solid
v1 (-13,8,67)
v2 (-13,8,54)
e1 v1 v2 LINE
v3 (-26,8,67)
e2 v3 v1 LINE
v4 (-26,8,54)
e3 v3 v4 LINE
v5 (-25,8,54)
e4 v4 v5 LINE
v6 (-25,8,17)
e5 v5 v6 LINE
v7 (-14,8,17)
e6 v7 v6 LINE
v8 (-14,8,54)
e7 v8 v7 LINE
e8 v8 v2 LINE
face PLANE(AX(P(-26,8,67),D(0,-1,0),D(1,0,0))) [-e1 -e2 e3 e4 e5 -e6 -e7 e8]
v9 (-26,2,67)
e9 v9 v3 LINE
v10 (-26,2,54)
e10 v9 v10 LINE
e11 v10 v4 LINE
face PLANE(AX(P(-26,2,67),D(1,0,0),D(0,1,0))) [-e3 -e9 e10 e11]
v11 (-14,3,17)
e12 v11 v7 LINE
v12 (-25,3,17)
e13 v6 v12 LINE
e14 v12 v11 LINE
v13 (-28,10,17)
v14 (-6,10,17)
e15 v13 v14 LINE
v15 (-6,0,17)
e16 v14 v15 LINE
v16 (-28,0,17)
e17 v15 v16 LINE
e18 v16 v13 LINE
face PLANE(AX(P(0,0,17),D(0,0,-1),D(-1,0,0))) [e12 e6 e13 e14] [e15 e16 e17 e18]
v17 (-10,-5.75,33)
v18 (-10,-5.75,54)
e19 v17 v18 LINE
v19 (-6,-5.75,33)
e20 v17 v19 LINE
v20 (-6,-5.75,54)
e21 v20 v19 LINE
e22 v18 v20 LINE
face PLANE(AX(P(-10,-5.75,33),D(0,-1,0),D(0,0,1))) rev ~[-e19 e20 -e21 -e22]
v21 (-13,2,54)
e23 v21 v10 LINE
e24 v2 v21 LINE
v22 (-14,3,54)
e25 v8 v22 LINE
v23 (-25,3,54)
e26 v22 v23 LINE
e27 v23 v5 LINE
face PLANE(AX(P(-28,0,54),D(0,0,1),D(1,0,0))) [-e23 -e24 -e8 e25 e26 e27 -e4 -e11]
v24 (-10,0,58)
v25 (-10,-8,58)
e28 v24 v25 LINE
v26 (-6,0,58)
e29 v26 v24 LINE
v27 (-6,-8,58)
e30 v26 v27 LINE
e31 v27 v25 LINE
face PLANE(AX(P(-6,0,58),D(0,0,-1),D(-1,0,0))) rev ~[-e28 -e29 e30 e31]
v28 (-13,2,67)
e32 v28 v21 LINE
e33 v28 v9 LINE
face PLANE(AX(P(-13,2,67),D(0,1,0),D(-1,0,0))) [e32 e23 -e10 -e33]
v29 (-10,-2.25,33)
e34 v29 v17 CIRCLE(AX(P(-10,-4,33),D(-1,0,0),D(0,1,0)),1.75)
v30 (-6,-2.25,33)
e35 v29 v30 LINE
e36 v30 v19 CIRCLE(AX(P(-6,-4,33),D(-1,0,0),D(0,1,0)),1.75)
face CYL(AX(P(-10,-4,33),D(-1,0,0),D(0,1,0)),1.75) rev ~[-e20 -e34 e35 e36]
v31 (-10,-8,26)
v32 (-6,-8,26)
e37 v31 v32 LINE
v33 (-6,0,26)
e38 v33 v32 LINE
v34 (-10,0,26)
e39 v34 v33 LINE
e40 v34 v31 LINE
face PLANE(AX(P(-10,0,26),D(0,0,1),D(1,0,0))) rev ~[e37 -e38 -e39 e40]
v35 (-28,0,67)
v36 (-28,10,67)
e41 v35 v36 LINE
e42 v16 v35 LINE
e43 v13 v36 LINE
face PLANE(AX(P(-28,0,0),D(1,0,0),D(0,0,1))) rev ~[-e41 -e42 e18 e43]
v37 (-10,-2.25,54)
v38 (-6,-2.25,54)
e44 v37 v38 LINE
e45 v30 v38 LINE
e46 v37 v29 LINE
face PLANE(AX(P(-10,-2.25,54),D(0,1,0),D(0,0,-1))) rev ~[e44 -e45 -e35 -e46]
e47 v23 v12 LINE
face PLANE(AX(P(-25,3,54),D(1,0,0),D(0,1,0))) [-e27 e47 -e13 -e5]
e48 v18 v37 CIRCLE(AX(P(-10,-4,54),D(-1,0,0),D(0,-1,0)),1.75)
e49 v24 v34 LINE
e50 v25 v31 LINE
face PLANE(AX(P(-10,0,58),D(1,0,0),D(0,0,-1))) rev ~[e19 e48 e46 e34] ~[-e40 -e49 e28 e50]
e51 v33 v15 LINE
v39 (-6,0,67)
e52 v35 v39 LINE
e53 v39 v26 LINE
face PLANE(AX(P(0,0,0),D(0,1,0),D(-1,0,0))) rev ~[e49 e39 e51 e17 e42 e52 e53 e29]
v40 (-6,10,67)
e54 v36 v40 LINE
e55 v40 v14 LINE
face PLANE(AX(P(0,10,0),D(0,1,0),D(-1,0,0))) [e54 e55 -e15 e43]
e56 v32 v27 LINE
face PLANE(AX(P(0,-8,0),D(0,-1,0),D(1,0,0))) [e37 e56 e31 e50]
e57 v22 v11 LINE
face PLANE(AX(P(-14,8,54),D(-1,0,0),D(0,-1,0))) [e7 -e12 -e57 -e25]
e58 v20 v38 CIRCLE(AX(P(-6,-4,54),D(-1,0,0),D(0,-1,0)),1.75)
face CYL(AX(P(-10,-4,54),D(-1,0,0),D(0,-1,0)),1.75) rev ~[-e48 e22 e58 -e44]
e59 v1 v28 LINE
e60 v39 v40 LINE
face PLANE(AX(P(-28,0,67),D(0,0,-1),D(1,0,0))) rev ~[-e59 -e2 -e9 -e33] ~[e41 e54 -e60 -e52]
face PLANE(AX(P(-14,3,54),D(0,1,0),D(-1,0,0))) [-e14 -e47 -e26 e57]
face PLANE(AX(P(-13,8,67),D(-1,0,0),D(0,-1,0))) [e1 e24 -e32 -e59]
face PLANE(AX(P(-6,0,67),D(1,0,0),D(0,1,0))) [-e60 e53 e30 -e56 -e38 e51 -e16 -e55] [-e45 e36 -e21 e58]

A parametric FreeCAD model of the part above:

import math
import FreeCAD as App
import Part
import Sketcher

V = App.Vector


def add_polygon(sketch, points):
    """Adds a closed chain of lines whose ends are joined by coincident constraints."""
    first, n = sketch.GeometryCount, len(points)
    for a, b in zip(points, points[1:] + points[:1]):
        sketch.addGeometry(Part.LineSegment(App.Vector(*a, 0), App.Vector(*b, 0)), False)
    for i in range(n):
        sketch.addConstraint(Sketcher.Constraint("Coincident", first + i, 2, first + (i + 1) % n, 1))

doc = App.newDocument("Part")
body = doc.addObject("PartDesign::Body", "Body")

# Sketch on XZ plane
sketch1 = body.newObject("Sketcher::SketchObject", "Sketch")
sketch1.AttachmentSupport = (doc.getObject("XZ_Plane"), [""])
sketch1.MapMode = "FlatFace"
add_polygon(sketch1, [(0, 67), (0, 0), (-28, 0), (-28, 67)])  # lines 0-3
sketch1.addConstraint([
    Sketcher.Constraint("Vertical", 0),
    Sketcher.Constraint("Horizontal", 1),
    Sketcher.Constraint("Vertical", 2),
    Sketcher.Constraint("Horizontal", 3),
    Sketcher.Constraint("Coincident", 0, 2, -1, 1),
    Sketcher.Constraint("DistanceX", 1, 2, 1, 1, 28.0),
    Sketcher.Constraint("DistanceY", 0, 2, 0, 1, 67.0),
])
pad1 = body.newObject("PartDesign::Pad", "Pad")
pad1.Profile = sketch1
pad1.Length = 10
pad1.Reversed = True

# Sketch on XY plane
sketch2 = body.newObject("Sketcher::SketchObject", "Sketch001")
sketch2.AttachmentSupport = (doc.getObject("XY_Plane"), [""])
sketch2.MapMode = "FlatFace"
sketch2.AttachmentOffset = App.Placement(V(0, 0, 67), App.Rotation())
add_polygon(sketch2, [(-13, 8), (-26, 8), (-26, 2), (-13, 2)])  # lines 0-3
sketch2.addConstraint([
    Sketcher.Constraint("Horizontal", 0),
    Sketcher.Constraint("Vertical", 1),
    Sketcher.Constraint("Horizontal", 2),
    Sketcher.Constraint("Vertical", 3),
    Sketcher.Constraint("DistanceX", 0, 2, 0, 1, 13.0),
    Sketcher.Constraint("DistanceY", 1, 2, 1, 1, 6.0),
    Sketcher.Constraint("DistanceX", 2, 2, -1, 1, 13.0),
    Sketcher.Constraint("DistanceY", -1, 1, 0, 2, 8.0),
])
pocket1 = body.newObject("PartDesign::Pocket", "Pocket")
pocket1.Profile = sketch2
pocket1.Length = 13

# Sketch on XY plane
sketch3 = body.newObject("Sketcher::SketchObject", "Sketch002")
sketch3.AttachmentSupport = (doc.getObject("XY_Plane"), [""])
sketch3.MapMode = "FlatFace"
sketch3.AttachmentOffset = App.Placement(V(0, 0, 54), App.Rotation())
add_polygon(sketch3, [(-14, 8), (-25, 8), (-25, 3), (-14, 3)])  # lines 0-3
sketch3.addConstraint([
    Sketcher.Constraint("Horizontal", 0),
    Sketcher.Constraint("Vertical", 1),
    Sketcher.Constraint("Horizontal", 2),
    Sketcher.Constraint("Vertical", 3),
    Sketcher.Constraint("DistanceX", 0, 2, 0, 1, 11.0),
    Sketcher.Constraint("DistanceY", 1, 2, 1, 1, 5.0),
    Sketcher.Constraint("DistanceX", 0, 2, -1, 1, 25.0),
    Sketcher.Constraint("DistanceY", -1, 1, 0, 2, 8.0),
])
pocket2 = body.newObject("PartDesign::Pocket", "Pocket001")
pocket2.Profile = sketch3
pocket2.Length = 60

# Sketch on XY plane
sketch4 = body.newObject("Sketcher::SketchObject", "Sketch003")
sketch4.AttachmentSupport = (doc.getObject("XY_Plane"), [""])
sketch4.MapMode = "FlatFace"
add_polygon(sketch4, [(0, 10), (0, 0), (-28, 0), (-28, 10)])  # lines 0-3
add_polygon(sketch4, [(-14, 8), (-25, 8), (-25, 3), (-14, 3)])  # lines 4-7
sketch4.addConstraint([
    Sketcher.Constraint("Vertical", 0),
    Sketcher.Constraint("Horizontal", 1),
    Sketcher.Constraint("Vertical", 2),
    Sketcher.Constraint("Horizontal", 3),
    Sketcher.Constraint("Horizontal", 4),
    Sketcher.Constraint("Vertical", 5),
    Sketcher.Constraint("Horizontal", 6),
    Sketcher.Constraint("Vertical", 7),
    Sketcher.Constraint("Coincident", 0, 2, -1, 1),
    Sketcher.Constraint("DistanceX", 1, 2, 1, 1, 28.0),
    Sketcher.Constraint("DistanceX", 4, 2, 4, 1, 11.0),
    Sketcher.Constraint("DistanceY", 0, 2, 0, 1, 10.0),
    Sketcher.Constraint("DistanceY", 5, 2, 5, 1, 5.0),
    Sketcher.Constraint("DistanceX", 4, 2, -1, 1, 25.0),
    Sketcher.Constraint("DistanceY", -1, 1, 4, 2, 8.0),
])
pocket3 = body.newObject("PartDesign::Pocket", "Pocket002")
pocket3.Profile = sketch4
pocket3.Length = 17
pocket3.Reversed = True

# Sketch on XY plane
sketch5 = body.newObject("Sketcher::SketchObject", "Sketch004")
sketch5.AttachmentSupport = (doc.getObject("XY_Plane"), [""])
sketch5.MapMode = "FlatFace"
sketch5.AttachmentOffset = App.Placement(V(0, 0, 67), App.Rotation())
add_polygon(sketch5, [(-6, 0), (0, 0), (0, 10), (-6, 10)])  # lines 0-3
sketch5.addConstraint([
    Sketcher.Constraint("Horizontal", 0),
    Sketcher.Constraint("Vertical", 1),
    Sketcher.Constraint("Horizontal", 2),
    Sketcher.Constraint("Vertical", 3),
    Sketcher.Constraint("Coincident", 0, 2, -1, 1),
    Sketcher.Constraint("DistanceX", 0, 1, 0, 2, 6.0),
    Sketcher.Constraint("DistanceY", 1, 1, 1, 2, 10.0),
])
pocket4 = body.newObject("PartDesign::Pocket", "Pocket003")
pocket4.Profile = sketch5
pocket4.Length = 60

# Sketch on XZ plane
sketch6 = body.newObject("Sketcher::SketchObject", "Sketch005")
sketch6.AttachmentSupport = (doc.getObject("XZ_Plane"), [""])
sketch6.MapMode = "FlatFace"
add_polygon(sketch6, [(-10, 26), (-6, 26), (-6, 58), (-10, 58)])  # lines 0-3
sketch6.addConstraint([
    Sketcher.Constraint("Horizontal", 0),
    Sketcher.Constraint("Vertical", 1),
    Sketcher.Constraint("Horizontal", 2),
    Sketcher.Constraint("Vertical", 3),
    Sketcher.Constraint("DistanceX", 0, 1, 0, 2, 4.0),
    Sketcher.Constraint("DistanceY", 1, 1, 1, 2, 32.0),
    Sketcher.Constraint("DistanceX", 0, 2, -1, 1, 6.0),
    Sketcher.Constraint("DistanceY", -1, 1, 0, 2, 26.0),
])
pad2 = body.newObject("PartDesign::Pad", "Pad001")
pad2.Profile = sketch6
pad2.Length = 8

# Sketch on YZ plane
sketch7 = body.newObject("Sketcher::SketchObject", "Sketch006")
sketch7.AttachmentSupport = (doc.getObject("YZ_Plane"), [""])
sketch7.MapMode = "FlatFace"
sketch7.AttachmentOffset = App.Placement(V(0, 0, -10), App.Rotation())
sketch7.addGeometry([
    Part.ArcOfCircle(Part.Circle(V(-4, 33, 0), V(0, 0, 1), 1.8), math.radians(180), math.radians(360)),
    Part.LineSegment(V(-5.8, 33, 0), V(-5.8, 54, 0)),
    Part.ArcOfCircle(Part.Circle(V(-4, 54, 0), V(0, 0, 1), 1.8), math.radians(0), math.radians(180)),
    Part.LineSegment(V(-2.2, 54, 0), V(-2.2, 33, 0)),
], False)
sketch7.addConstraint([
    Sketcher.Constraint("Tangent", 0, 1, 1, 1),
    Sketcher.Constraint("Tangent", 1, 2, 2, 2),
    Sketcher.Constraint("Tangent", 2, 1, 3, 1),
    Sketcher.Constraint("Tangent", 3, 2, 0, 2),
    Sketcher.Constraint("Vertical", 1),
    Sketcher.Constraint("Vertical", 3),
    Sketcher.Constraint("Radius", 0, 1.75),
    Sketcher.Constraint("DistanceY", 1, 1, 1, 2, 21.0),
    Sketcher.Constraint("DistanceX", 0, 3, -1, 1, 4.0),
    Sketcher.Constraint("DistanceY", -1, 1, 0, 3, 33.0),
])
pocket5 = body.newObject("PartDesign::Pocket", "Pocket004")
pocket5.Profile = sketch7
pocket5.Length = 12
pocket5.Reversed = True

doc.recompute()
